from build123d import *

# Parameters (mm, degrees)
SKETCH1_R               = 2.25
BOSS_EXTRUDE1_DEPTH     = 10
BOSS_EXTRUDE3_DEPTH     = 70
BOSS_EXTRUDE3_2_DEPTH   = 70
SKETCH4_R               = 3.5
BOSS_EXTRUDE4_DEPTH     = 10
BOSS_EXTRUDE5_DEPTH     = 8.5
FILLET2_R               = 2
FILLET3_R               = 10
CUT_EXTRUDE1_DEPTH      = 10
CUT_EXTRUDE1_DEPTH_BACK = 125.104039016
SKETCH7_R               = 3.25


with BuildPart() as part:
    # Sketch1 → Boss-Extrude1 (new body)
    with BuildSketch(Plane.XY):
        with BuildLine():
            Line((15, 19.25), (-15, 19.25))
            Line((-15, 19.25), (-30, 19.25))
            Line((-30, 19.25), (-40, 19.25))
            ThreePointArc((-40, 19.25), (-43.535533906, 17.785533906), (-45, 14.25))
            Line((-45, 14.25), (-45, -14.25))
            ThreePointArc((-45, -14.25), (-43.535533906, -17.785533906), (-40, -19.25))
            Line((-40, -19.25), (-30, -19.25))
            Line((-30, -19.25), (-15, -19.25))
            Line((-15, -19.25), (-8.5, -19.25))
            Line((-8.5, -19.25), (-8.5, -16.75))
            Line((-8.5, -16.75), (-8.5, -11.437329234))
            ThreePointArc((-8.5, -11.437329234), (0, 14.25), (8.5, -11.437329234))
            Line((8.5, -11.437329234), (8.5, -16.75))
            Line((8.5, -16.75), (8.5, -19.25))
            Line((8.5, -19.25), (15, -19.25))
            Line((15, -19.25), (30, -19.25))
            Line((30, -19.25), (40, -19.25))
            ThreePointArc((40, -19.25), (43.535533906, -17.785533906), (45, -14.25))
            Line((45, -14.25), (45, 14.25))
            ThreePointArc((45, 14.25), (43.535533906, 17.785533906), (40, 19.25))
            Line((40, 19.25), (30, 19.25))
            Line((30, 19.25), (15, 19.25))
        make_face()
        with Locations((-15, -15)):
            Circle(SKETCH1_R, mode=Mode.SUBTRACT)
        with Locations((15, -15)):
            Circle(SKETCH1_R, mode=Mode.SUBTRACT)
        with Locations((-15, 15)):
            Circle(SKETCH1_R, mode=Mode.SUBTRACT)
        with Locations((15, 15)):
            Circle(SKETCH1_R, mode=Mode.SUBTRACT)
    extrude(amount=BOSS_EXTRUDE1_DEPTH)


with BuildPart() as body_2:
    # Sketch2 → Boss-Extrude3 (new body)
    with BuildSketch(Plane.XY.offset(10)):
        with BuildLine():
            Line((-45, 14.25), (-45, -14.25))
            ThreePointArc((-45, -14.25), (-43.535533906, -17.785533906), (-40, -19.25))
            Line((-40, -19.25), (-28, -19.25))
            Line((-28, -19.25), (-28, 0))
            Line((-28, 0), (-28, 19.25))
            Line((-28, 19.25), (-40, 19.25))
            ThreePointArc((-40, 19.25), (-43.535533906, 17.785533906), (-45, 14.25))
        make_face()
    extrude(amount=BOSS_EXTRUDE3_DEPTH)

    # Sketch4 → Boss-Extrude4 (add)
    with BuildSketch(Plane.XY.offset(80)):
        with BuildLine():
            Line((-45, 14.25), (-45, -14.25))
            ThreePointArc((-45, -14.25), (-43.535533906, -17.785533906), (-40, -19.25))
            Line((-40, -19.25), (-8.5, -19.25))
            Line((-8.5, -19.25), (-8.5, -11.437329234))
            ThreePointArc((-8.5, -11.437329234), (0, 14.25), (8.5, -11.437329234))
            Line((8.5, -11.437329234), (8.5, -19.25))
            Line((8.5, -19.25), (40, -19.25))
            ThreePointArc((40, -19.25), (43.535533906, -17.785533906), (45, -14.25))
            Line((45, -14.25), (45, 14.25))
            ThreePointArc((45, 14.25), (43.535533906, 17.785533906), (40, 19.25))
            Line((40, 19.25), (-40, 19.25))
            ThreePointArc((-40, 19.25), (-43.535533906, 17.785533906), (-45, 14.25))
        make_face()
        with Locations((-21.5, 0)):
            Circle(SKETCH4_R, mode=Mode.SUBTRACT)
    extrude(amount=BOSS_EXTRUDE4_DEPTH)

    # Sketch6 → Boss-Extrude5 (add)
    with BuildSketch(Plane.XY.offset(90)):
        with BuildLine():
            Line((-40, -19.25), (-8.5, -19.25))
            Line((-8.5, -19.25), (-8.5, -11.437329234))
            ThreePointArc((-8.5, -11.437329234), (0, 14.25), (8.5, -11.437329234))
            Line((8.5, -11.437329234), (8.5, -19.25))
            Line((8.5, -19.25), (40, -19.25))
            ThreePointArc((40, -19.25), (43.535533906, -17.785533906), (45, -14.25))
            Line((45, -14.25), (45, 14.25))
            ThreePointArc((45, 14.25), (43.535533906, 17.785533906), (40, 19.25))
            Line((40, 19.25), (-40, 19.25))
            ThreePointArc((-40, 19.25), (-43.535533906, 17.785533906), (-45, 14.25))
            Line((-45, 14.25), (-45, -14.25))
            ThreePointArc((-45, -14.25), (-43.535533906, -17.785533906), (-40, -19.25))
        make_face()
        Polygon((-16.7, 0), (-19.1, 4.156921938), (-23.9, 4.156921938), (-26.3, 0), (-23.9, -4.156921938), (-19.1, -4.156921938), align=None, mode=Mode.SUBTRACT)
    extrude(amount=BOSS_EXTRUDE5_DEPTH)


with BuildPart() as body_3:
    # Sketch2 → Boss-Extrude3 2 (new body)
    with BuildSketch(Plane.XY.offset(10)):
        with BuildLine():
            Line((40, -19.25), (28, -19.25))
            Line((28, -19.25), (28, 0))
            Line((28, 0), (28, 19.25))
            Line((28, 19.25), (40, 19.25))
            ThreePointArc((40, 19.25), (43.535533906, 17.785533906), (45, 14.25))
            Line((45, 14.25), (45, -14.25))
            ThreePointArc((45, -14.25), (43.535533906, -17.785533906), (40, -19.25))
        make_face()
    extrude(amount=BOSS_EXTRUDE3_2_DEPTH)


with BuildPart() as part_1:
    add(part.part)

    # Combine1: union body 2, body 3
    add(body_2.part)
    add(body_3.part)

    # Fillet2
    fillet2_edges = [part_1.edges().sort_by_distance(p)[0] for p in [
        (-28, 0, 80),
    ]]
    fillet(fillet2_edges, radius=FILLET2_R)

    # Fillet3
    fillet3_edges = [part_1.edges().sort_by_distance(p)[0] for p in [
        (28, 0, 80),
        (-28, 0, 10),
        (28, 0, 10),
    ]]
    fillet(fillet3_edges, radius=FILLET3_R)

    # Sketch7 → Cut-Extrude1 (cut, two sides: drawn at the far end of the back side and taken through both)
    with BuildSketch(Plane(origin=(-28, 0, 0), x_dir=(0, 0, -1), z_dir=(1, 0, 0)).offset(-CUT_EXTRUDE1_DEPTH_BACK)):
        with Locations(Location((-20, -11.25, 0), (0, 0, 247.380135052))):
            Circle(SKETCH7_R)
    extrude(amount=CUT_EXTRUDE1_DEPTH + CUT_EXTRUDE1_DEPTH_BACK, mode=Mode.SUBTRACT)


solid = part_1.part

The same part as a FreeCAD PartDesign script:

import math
import FreeCAD as App
import Part
import Sketcher
from FreeCAD import Vector
Q = App.Units.Quantity


def edges_at(feature, points):
    """Names of the edges that pass closest to the given points."""
    edges = feature.Shape.Edges
    near = lambda p: min(range(len(edges)), key=lambda i: edges[i].distToShape(Part.Vertex(*p))[0])
    return sorted({f"Edge{near(p) + 1}" for p in points})

doc = App.newDocument("Part")
body = doc.addObject("PartDesign::Body", "Body")

# Sketch on XY plane
sketch1 = doc.addObject("Sketcher::SketchObject", "Sketch")
body.addObject(sketch1)
sketch1.AttachmentSupport = (doc.XY_Plane, [""])
sketch1.MapMode = "FlatFace"
sketch1.addGeometry(Part.ArcOfCircle(Part.Circle(Vector(-40, 14.25, 0), Vector(0, 0, 1), 5), math.radians(90), math.radians(180)), False)
sketch1.addGeometry(Part.LineSegment(Vector(-45, 14.25, 0), Vector(-45, -14.25, 0)), False)
sketch1.addGeometry(Part.ArcOfCircle(Part.Circle(Vector(-40, -14.25, 0), Vector(0, 0, 1), 5), math.radians(180), math.radians(270)), False)
sketch1.addGeometry(Part.LineSegment(Vector(-40, -19.25, 0), Vector(-8.5, -19.25, 0)), False)
sketch1.addGeometry(Part.LineSegment(Vector(-8.5, -19.25, 0), Vector(-8.5, -11.437329, 0)), False)
sketch1.addGeometry(Part.ArcOfCircle(Part.Circle(Vector(0, 0, 0), Vector(0, 0, 1), 14.25), math.radians(-53.380988), math.radians(233.380988)), False)
sketch1.addGeometry(Part.LineSegment(Vector(8.5, -11.437329, 0), Vector(8.5, -19.25, 0)), False)
sketch1.addGeometry(Part.LineSegment(Vector(8.5, -19.25, 0), Vector(40, -19.25, 0)), False)
sketch1.addGeometry(Part.ArcOfCircle(Part.Circle(Vector(40, -14.25, 0), Vector(0, 0, 1), 5), math.radians(-90), math.radians(0)), False)
sketch1.addGeometry(Part.LineSegment(Vector(45, -14.25, 0), Vector(45, 14.25, 0)), False)
sketch1.addGeometry(Part.ArcOfCircle(Part.Circle(Vector(40, 14.25, 0), Vector(0, 0, 1), 5), math.radians(0), math.radians(90)), False)
sketch1.addGeometry(Part.LineSegment(Vector(40, 19.25, 0), Vector(-40, 19.25, 0)), False)
sketch1.addGeometry(Part.Circle(Vector(-15, -15, 0), Vector(0, 0, 1), 2.25), False)
sketch1.addGeometry(Part.Circle(Vector(15, -15, 0), Vector(0, 0, 1), 2.25), False)
sketch1.addGeometry(Part.Circle(Vector(-15, 15, 0), Vector(0, 0, 1), 2.25), False)
sketch1.addGeometry(Part.Circle(Vector(15, 15, 0), Vector(0, 0, 1), 2.25), False)
sketch1.addConstraint(Sketcher.Constraint("Tangent", 0, 2, 1, 1))
sketch1.addConstraint(Sketcher.Constraint("Tangent", 1, 2, 2, 1))
sketch1.addConstraint(Sketcher.Constraint("Tangent", 2, 2, 3, 1))
sketch1.addConstraint(Sketcher.Constraint("Coincident", 3, 2, 4, 1))
sketch1.addConstraint(Sketcher.Constraint("Coincident", 4, 2, 5, 2))
sketch1.addConstraint(Sketcher.Constraint("Coincident", 5, 1, 6, 1))
sketch1.addConstraint(Sketcher.Constraint("Coincident", 6, 2, 7, 1))
sketch1.addConstraint(Sketcher.Constraint("Tangent", 7, 2, 8, 1))
sketch1.addConstraint(Sketcher.Constraint("Tangent", 8, 2, 9, 1))
sketch1.addConstraint(Sketcher.Constraint("Tangent", 9, 2, 10, 1))
sketch1.addConstraint(Sketcher.Constraint("Tangent", 10, 2, 11, 1))
sketch1.addConstraint(Sketcher.Constraint("Tangent", 11, 2, 0, 1))
sketch1.addConstraint(Sketcher.Constraint("Vertical", 1))
sketch1.addConstraint(Sketcher.Constraint("Horizontal", 3))
sketch1.addConstraint(Sketcher.Constraint("Vertical", 4))
sketch1.addConstraint(Sketcher.Constraint("Vertical", 6))
sketch1.addConstraint(Sketcher.Constraint("Horizontal", 7))
sketch1.addConstraint(Sketcher.Constraint("Vertical", 9))
sketch1.addConstraint(Sketcher.Constraint("Horizontal", 11))
sketch1.addConstraint(Sketcher.Constraint("Coincident", 5, 3, -1, 1))
sketch1.addConstraint(Sketcher.Constraint("Equal", 0, 2))
sketch1.addConstraint(Sketcher.Constraint("Equal", 2, 8))
sketch1.addConstraint(Sketcher.Constraint("Equal", 8, 10))
sketch1.addConstraint(Sketcher.Constraint("Equal", 12, 13))
sketch1.addConstraint(Sketcher.Constraint("Equal", 13, 14))
sketch1.addConstraint(Sketcher.Constraint("Equal", 14, 15))
sketch1.addConstraint(Sketcher.Constraint("Symmetric", 0, 3, 8, 3, -1, 1))
sketch1.addConstraint(Sketcher.Constraint("Symmetric", 13, 3, 14, 3, -1, 1))
sketch1.addConstraint(Sketcher.Constraint("Symmetric", 12, 3, 15, 3, -1, 1))
sketch1.addConstraint(Sketcher.Constraint("Symmetric", 12, 3, 13, 3, -2))
sketch1.addConstraint(Sketcher.Constraint("Symmetric", 3, 2, 6, 2, -2))
sketch1.addConstraint(Sketcher.Constraint("Radius", 0, 5.0))
sketch1.addConstraint(Sketcher.Constraint("Diameter", 12, 4.5))
sketch1.addConstraint(Sketcher.Constraint("DistanceX", 11, 2, 11, 1, 80.0))
sketch1.addConstraint(Sketcher.Constraint("Radius", 5, 14.25))
sketch1.addConstraint(Sketcher.Constraint("DistanceX", 3, 1, 3, 2, 31.5))
sketch1.addConstraint(Sketcher.Constraint("DistanceY", 1, 2, 1, 1, 28.5))
sketch1.addConstraint(Sketcher.Constraint("DistanceX", 12, 3, -1, 1, 15.0))
sketch1.addConstraint(Sketcher.Constraint("DistanceY", 12, 3, -1, 1, 15.0))
pad1 = doc.addObject("PartDesign::Pad", "Pad")
body.addObject(pad1)
pad1.Profile = sketch1
pad1.Length = 10
body2 = doc.addObject("PartDesign::Body", "Body001")

# Sketch on XY plane
sketch2 = doc.addObject("Sketcher::SketchObject", "Sketch001")
body2.addObject(sketch2)
sketch2.AttachmentSupport = (doc.getObject("XY_Plane001"), [""])
sketch2.MapMode = "FlatFace"
sketch2.AttachmentOffset = App.Placement(Vector(0, 0, 10), App.Rotation())
sketch2.addGeometry(Part.LineSegment(Vector(-45, 14.25, 0), Vector(-45, -14.25, 0)), False)
sketch2.addGeometry(Part.ArcOfCircle(Part.Circle(Vector(-40, -14.25, 0), Vector(0, 0, 1), 5), math.radians(180), math.radians(270)), False)
sketch2.addGeometry(Part.LineSegment(Vector(-40, -19.25, 0), Vector(-28, -19.25, 0)), False)
sketch2.addGeometry(Part.LineSegment(Vector(-28, -19.25, 0), Vector(-28, 19.25, 0)), False)
sketch2.addGeometry(Part.LineSegment(Vector(-28, 19.25, 0), Vector(-40, 19.25, 0)), False)
sketch2.addGeometry(Part.ArcOfCircle(Part.Circle(Vector(-40, 14.25, 0), Vector(0, 0, 1), 5), math.radians(90), math.radians(180)), False)
sketch2.addConstraint(Sketcher.Constraint("Tangent", 0, 2, 1, 1))
sketch2.addConstraint(Sketcher.Constraint("Tangent", 1, 2, 2, 1))
sketch2.addConstraint(Sketcher.Constraint("Coincident", 2, 2, 3, 1))
sketch2.addConstraint(Sketcher.Constraint("Coincident", 3, 2, 4, 1))
sketch2.addConstraint(Sketcher.Constraint("Tangent", 4, 2, 5, 1))
sketch2.addConstraint(Sketcher.Constraint("Tangent", 5, 2, 0, 1))
sketch2.addConstraint(Sketcher.Constraint("Vertical", 0))
sketch2.addConstraint(Sketcher.Constraint("Horizontal", 2))
sketch2.addConstraint(Sketcher.Constraint("Vertical", 3))
sketch2.addConstraint(Sketcher.Constraint("Horizontal", 4))
sketch2.addConstraint(Sketcher.Constraint("Equal", 1, 5))
sketch2.addConstraint(Sketcher.Constraint("Radius", 1, 5.0))
sketch2.addConstraint(Sketcher.Constraint("DistanceX", 2, 1, 2, 2, 12.0))
sketch2.addConstraint(Sketcher.Constraint("DistanceY", 0, 2, 0, 1, 28.5))
sketch2.addConstraint(Sketcher.Constraint("DistanceX", 1, 3, -1, 1, 40.0))
sketch2.addConstraint(Sketcher.Constraint("DistanceY", 1, 3, -1, 1, 14.25))
pad2 = doc.addObject("PartDesign::Pad", "Pad001")
body2.addObject(pad2)
pad2.Profile = sketch2
pad2.Length = 70

# Sketch on XY plane
sketch3 = doc.addObject("Sketcher::SketchObject", "Sketch002")
body2.addObject(sketch3)
sketch3.AttachmentSupport = (doc.getObject("XY_Plane001"), [""])
sketch3.MapMode = "FlatFace"
sketch3.AttachmentOffset = App.Placement(Vector(0, 0, 80), App.Rotation())
sketch3.addGeometry(Part.LineSegment(Vector(-45, 14.25, 0), Vector(-45, -14.25, 0)), False)
sketch3.addGeometry(Part.ArcOfCircle(Part.Circle(Vector(-40, -14.25, 0), Vector(0, 0, 1), 5), math.radians(180), math.radians(270)), False)
sketch3.addGeometry(Part.LineSegment(Vector(-40, -19.25, 0), Vector(-8.5, -19.25, 0)), False)
sketch3.addGeometry(Part.LineSegment(Vector(-8.5, -19.25, 0), Vector(-8.5, -11.437329, 0)), False)
sketch3.addGeometry(Part.ArcOfCircle(Part.Circle(Vector(0, 0, 0), Vector(0, 0, 1), 14.25), math.radians(-53.380988), math.radians(233.380988)), False)
sketch3.addGeometry(Part.LineSegment(Vector(8.5, -11.437329, 0), Vector(8.5, -19.25, 0)), False)
sketch3.addGeometry(Part.LineSegment(Vector(8.5, -19.25, 0), Vector(40, -19.25, 0)), False)
sketch3.addGeometry(Part.ArcOfCircle(Part.Circle(Vector(40, -14.25, 0), Vector(0, 0, 1), 5), math.radians(-90), math.radians(0)), False)
sketch3.addGeometry(Part.LineSegment(Vector(45, -14.25, 0), Vector(45, 14.25, 0)), False)
sketch3.addGeometry(Part.ArcOfCircle(Part.Circle(Vector(40, 14.25, 0), Vector(0, 0, 1), 5), math.radians(0), math.radians(90)), False)
sketch3.addGeometry(Part.LineSegment(Vector(40, 19.25, 0), Vector(-40, 19.25, 0)), False)
sketch3.addGeometry(Part.ArcOfCircle(Part.Circle(Vector(-40, 14.25, 0), Vector(0, 0, 1), 5), math.radians(90), math.radians(180)), False)
sketch3.addGeometry(Part.Circle(Vector(-21.5, 0, 0), Vector(0, 0, 1), 3.5), False)
sketch3.addConstraint(Sketcher.Constraint("Tangent", 0, 2, 1, 1))
sketch3.addConstraint(Sketcher.Constraint("Tangent", 1, 2, 2, 1))
sketch3.addConstraint(Sketcher.Constraint("Coincident", 2, 2, 3, 1))
sketch3.addConstraint(Sketcher.Constraint("Coincident", 3, 2, 4, 2))
sketch3.addConstraint(Sketcher.Constraint("Coincident", 4, 1, 5, 1))
sketch3.addConstraint(Sketcher.Constraint("Coincident", 5, 2, 6, 1))
sketch3.addConstraint(Sketcher.Constraint("Tangent", 6, 2, 7, 1))
sketch3.addConstraint(Sketcher.Constraint("Tangent", 7, 2, 8, 1))
sketch3.addConstraint(Sketcher.Constraint("Tangent", 8, 2, 9, 1))
sketch3.addConstraint(Sketcher.Constraint("Tangent", 9, 2, 10, 1))
sketch3.addConstraint(Sketcher.Constraint("Tangent", 10, 2, 11, 1))
sketch3.addConstraint(Sketcher.Constraint("Tangent", 11, 2, 0, 1))
sketch3.addConstraint(Sketcher.Constraint("Vertical", 0))
sketch3.addConstraint(Sketcher.Constraint("Horizontal", 2))
sketch3.addConstraint(Sketcher.Constraint("Vertical", 3))
sketch3.addConstraint(Sketcher.Constraint("Vertical", 5))
sketch3.addConstraint(Sketcher.Constraint("Horizontal", 6))
sketch3.addConstraint(Sketcher.Constraint("Vertical", 8))
sketch3.addConstraint(Sketcher.Constraint("Horizontal", 10))
sketch3.addConstraint(Sketcher.Constraint("Coincident", 4, 3, -1, 1))
sketch3.addConstraint(Sketcher.Constraint("Equal", 1, 7))
sketch3.addConstraint(Sketcher.Constraint("Equal", 7, 9))
sketch3.addConstraint(Sketcher.Constraint("Equal", 9, 11))
sketch3.addConstraint(Sketcher.Constraint("Symmetric", 1, 3, 9, 3, -1, 1))
sketch3.addConstraint(Sketcher.Constraint("Symmetric", 2, 2, 5, 2, -2))
sketch3.addConstraint(Sketcher.Constraint("PointOnObject", 12, 3, -1))
sketch3.addConstraint(Sketcher.Constraint("Diameter", 12, 7.0))
sketch3.addConstraint(Sketcher.Constraint("Radius", 1, 5.0))
sketch3.addConstraint(Sketcher.Constraint("DistanceX", 10, 2, 10, 1, 80.0))
sketch3.addConstraint(Sketcher.Constraint("Radius", 4, 14.25))
sketch3.addConstraint(Sketcher.Constraint("DistanceX", 2, 1, 2, 2, 31.5))
sketch3.addConstraint(Sketcher.Constraint("DistanceY", 0, 2, 0, 1, 28.5))
sketch3.addConstraint(Sketcher.Constraint("DistanceX", 12, 3, 2, 2, 13.0))
pad3 = doc.addObject("PartDesign::Pad", "Pad002")
body2.addObject(pad3)
pad3.Profile = sketch3
pad3.Length = 10

# Sketch on XY plane
sketch4 = doc.addObject("Sketcher::SketchObject", "Sketch003")
body2.addObject(sketch4)
sketch4.AttachmentSupport = (doc.getObject("XY_Plane001"), [""])
sketch4.MapMode = "FlatFace"
sketch4.AttachmentOffset = App.Placement(Vector(0, 0, 90), App.Rotation())
sketch4.addGeometry(Part.LineSegment(Vector(-40, -19.25, 0), Vector(-8.5, -19.25, 0)), False)
sketch4.addGeometry(Part.LineSegment(Vector(-8.5, -19.25, 0), Vector(-8.5, -11.437329, 0)), False)
sketch4.addGeometry(Part.ArcOfCircle(Part.Circle(Vector(0, 0, 0), Vector(0, 0, 1), 14.25), math.radians(-53.380988), math.radians(233.380988)), False)
sketch4.addGeometry(Part.LineSegment(Vector(8.5, -11.437329, 0), Vector(8.5, -19.25, 0)), False)
sketch4.addGeometry(Part.LineSegment(Vector(8.5, -19.25, 0), Vector(40, -19.25, 0)), False)
sketch4.addGeometry(Part.ArcOfCircle(Part.Circle(Vector(40, -14.25, 0), Vector(0, 0, 1), 5), math.radians(-90), math.radians(0)), False)
sketch4.addGeometry(Part.LineSegment(Vector(45, -14.25, 0), Vector(45, 14.25, 0)), False)
sketch4.addGeometry(Part.ArcOfCircle(Part.Circle(Vector(40, 14.25, 0), Vector(0, 0, 1), 5), math.radians(0), math.radians(90)), False)
sketch4.addGeometry(Part.LineSegment(Vector(40, 19.25, 0), Vector(-40, 19.25, 0)), False)
sketch4.addGeometry(Part.ArcOfCircle(Part.Circle(Vector(-40, 14.25, 0), Vector(0, 0, 1), 5), math.radians(90), math.radians(180)), False)
sketch4.addGeometry(Part.LineSegment(Vector(-45, 14.25, 0), Vector(-45, -14.25, 0)), False)
sketch4.addGeometry(Part.ArcOfCircle(Part.Circle(Vector(-40, -14.25, 0), Vector(0, 0, 1), 5), math.radians(180), math.radians(270)), False)
sketch4.addGeometry(Part.LineSegment(Vector(-19.1, 4.156922, 0), Vector(-16.7, 0, 0)), False)
sketch4.addGeometry(Part.LineSegment(Vector(-16.7, 0, 0), Vector(-19.1, -4.156922, 0)), False)
sketch4.addGeometry(Part.LineSegment(Vector(-19.1, -4.156922, 0), Vector(-23.9, -4.156922, 0)), False)
sketch4.addGeometry(Part.LineSegment(Vector(-23.9, -4.156922, 0), Vector(-26.3, 0, 0)), False)
sketch4.addGeometry(Part.LineSegment(Vector(-26.3, 0, 0), Vector(-23.9, 4.156922, 0)), False)
sketch4.addGeometry(Part.LineSegment(Vector(-23.9, 4.156922, 0), Vector(-19.1, 4.156922, 0)), False)
sketch4.addConstraint(Sketcher.Constraint("Coincident", 0, 2, 1, 1))
sketch4.addConstraint(Sketcher.Constraint("Coincident", 1, 2, 2, 2))
sketch4.addConstraint(Sketcher.Constraint("Coincident", 2, 1, 3, 1))
sketch4.addConstraint(Sketcher.Constraint("Coincident", 3, 2, 4, 1))
sketch4.addConstraint(Sketcher.Constraint("Tangent", 4, 2, 5, 1))
sketch4.addConstraint(Sketcher.Constraint("Tangent", 5, 2, 6, 1))
sketch4.addConstraint(Sketcher.Constraint("Tangent", 6, 2, 7, 1))
sketch4.addConstraint(Sketcher.Constraint("Tangent", 7, 2, 8, 1))
sketch4.addConstraint(Sketcher.Constraint("Tangent", 8, 2, 9, 1))
sketch4.addConstraint(Sketcher.Constraint("Tangent", 9, 2, 10, 1))
sketch4.addConstraint(Sketcher.Constraint("Tangent", 10, 2, 11, 1))
sketch4.addConstraint(Sketcher.Constraint("Tangent", 11, 2, 0, 1))
sketch4.addConstraint(Sketcher.Constraint("Coincident", 12, 2, 13, 1))
sketch4.addConstraint(Sketcher.Constraint("Coincident", 13, 2, 14, 1))
sketch4.addConstraint(Sketcher.Constraint("Coincident", 14, 2, 15, 1))
sketch4.addConstraint(Sketcher.Constraint("Coincident", 15, 2, 16, 1))
sketch4.addConstraint(Sketcher.Constraint("Coincident", 16, 2, 17, 1))
sketch4.addConstraint(Sketcher.Constraint("Coincident", 17, 2, 12, 1))
sketch4.addConstraint(Sketcher.Constraint("Horizontal", 0))
sketch4.addConstraint(Sketcher.Constraint("Vertical", 1))
sketch4.addConstraint(Sketcher.Constraint("Vertical", 3))
sketch4.addConstraint(Sketcher.Constraint("Horizontal", 4))
sketch4.addConstraint(Sketcher.Constraint("Vertical", 6))
sketch4.addConstraint(Sketcher.Constraint("Horizontal", 8))
sketch4.addConstraint(Sketcher.Constraint("Vertical", 10))
sketch4.addConstraint(Sketcher.Constraint("Horizontal", 14))
sketch4.addConstraint(Sketcher.Constraint("Horizontal", 17))
sketch4.addConstraint(Sketcher.Constraint("Coincident", 2, 3, -1, 1))
sketch4.addConstraint(Sketcher.Constraint("Equal", 5, 7))
sketch4.addConstraint(Sketcher.Constraint("Equal", 7, 9))
sketch4.addConstraint(Sketcher.Constraint("Equal", 9, 11))
sketch4.addConstraint(Sketcher.Constraint("Symmetric", 5, 3, 9, 3, -1, 1))
sketch4.addConstraint(Sketcher.Constraint("Symmetric", 0, 2, 3, 2, -2))
sketch4.addConstraint(Sketcher.Constraint("Symmetric", 14, 2, 16, 2, -1))
sketch4.addConstraint(Sketcher.Constraint("PointOnObject", 12, 2, -1))
sketch4.addConstraint(Sketcher.Constraint("PointOnObject", 15, 2, -1))
sketch4.addConstraint(Sketcher.Constraint("Parallel", 12, 15))
sketch4.addConstraint(Sketcher.Constraint("Parallel", 13, 16))
sketch4.addConstraint(Sketcher.Constraint("Radius", 5, 5.0))
sketch4.addConstraint(Sketcher.Constraint("DistanceX", 8, 2, 8, 1, 80.0))
sketch4.addConstraint(Sketcher.Constraint("Angle", 12, Q("-60 deg")))
sketch4.addConstraint(Sketcher.Constraint("Radius", 2, 14.25))
sketch4.addConstraint(Sketcher.Constraint("DistanceX", 0, 1, 0, 2, 31.5))
sketch4.addConstraint(Sketcher.Constraint("DistanceX", 14, 2, 14, 1, 4.8))
sketch4.addConstraint(Sketcher.Constraint("DistanceY", 6, 1, 6, 2, 28.5))
sketch4.addConstraint(Sketcher.Constraint("Distance", 12, 4.8))
sketch4.addConstraint(Sketcher.Constraint("DistanceX", 12, 2, -1, 1, 16.7))
pad4 = doc.addObject("PartDesign::Pad", "Pad003")
body2.addObject(pad4)
pad4.Profile = sketch4
pad4.Length = 8.5
body3 = doc.addObject("PartDesign::Body", "Body002")

# Sketch on XY plane
sketch5 = doc.addObject("Sketcher::SketchObject", "Sketch004")
body3.addObject(sketch5)
sketch5.AttachmentSupport = (doc.getObject("XY_Plane002"), [""])
sketch5.MapMode = "FlatFace"
sketch5.AttachmentOffset = App.Placement(Vector(0, 0, 10), App.Rotation())
sketch5.addGeometry(Part.LineSegment(Vector(28, -19.25, 0), Vector(40, -19.25, 0)), False)
sketch5.addGeometry(Part.ArcOfCircle(Part.Circle(Vector(40, -14.25, 0), Vector(0, 0, 1), 5), math.radians(-90), math.radians(0)), False)
sketch5.addGeometry(Part.LineSegment(Vector(45, -14.25, 0), Vector(45, 14.25, 0)), False)
sketch5.addGeometry(Part.ArcOfCircle(Part.Circle(Vector(40, 14.25, 0), Vector(0, 0, 1), 5), math.radians(0), math.radians(90)), False)
sketch5.addGeometry(Part.LineSegment(Vector(40, 19.25, 0), Vector(28, 19.25, 0)), False)
sketch5.addGeometry(Part.LineSegment(Vector(28, 19.25, 0), Vector(28, -19.25, 0)), False)
sketch5.addConstraint(Sketcher.Constraint("Tangent", 0, 2, 1, 1))
sketch5.addConstraint(Sketcher.Constraint("Tangent", 1, 2, 2, 1))
sketch5.addConstraint(Sketcher.Constraint("Tangent", 2, 2, 3, 1))
sketch5.addConstraint(Sketcher.Constraint("Tangent", 3, 2, 4, 1))
sketch5.addConstraint(Sketcher.Constraint("Coincident", 4, 2, 5, 1))
sketch5.addConstraint(Sketcher.Constraint("Coincident", 5, 2, 0, 1))
sketch5.addConstraint(Sketcher.Constraint("Horizontal", 0))
sketch5.addConstraint(Sketcher.Constraint("Vertical", 2))
sketch5.addConstraint(Sketcher.Constraint("Horizontal", 4))
sketch5.addConstraint(Sketcher.Constraint("Vertical", 5))
sketch5.addConstraint(Sketcher.Constraint("Equal", 1, 3))
sketch5.addConstraint(Sketcher.Constraint("Radius", 1, 5.0))
sketch5.addConstraint(Sketcher.Constraint("DistanceX", 0, 1, 0, 2, 12.0))
sketch5.addConstraint(Sketcher.Constraint("DistanceY", 2, 1, 2, 2, 28.5))
sketch5.addConstraint(Sketcher.Constraint("DistanceX", -1, 1, 1, 3, 40.0))
sketch5.addConstraint(Sketcher.Constraint("DistanceY", 1, 3, -1, 1, 14.25))
pad5 = doc.addObject("PartDesign::Pad", "Pad004")
body3.addObject(pad5)
pad5.Profile = sketch5
pad5.Length = 70
doc.recompute()

boolean = doc.addObject("PartDesign::Boolean", "Boolean")
body.addObject(boolean)
boolean.Type = "Fuse"
boolean.addObjects([body2])
doc.recompute()

boolean2 = doc.addObject("PartDesign::Boolean", "Boolean001")
body.addObject(boolean2)
boolean2.Type = "Fuse"
boolean2.addObjects([body3])
doc.recompute()

fillet = doc.addObject("PartDesign::Fillet", "Fillet")
body.addObject(fillet)
fillet.Base = (boolean2, edges_at(boolean2, [(-28, 0, 80)]))
fillet.Radius = 2
doc.recompute()

fillet2 = doc.addObject("PartDesign::Fillet", "Fillet001")
body.addObject(fillet2)
fillet2.Base = (fillet, edges_at(fillet, [(28, 0, 80), (-28, 0, 10), (28, 0, 10)]))
fillet2.Radius = 10

# Sketch on YZ plane
sketch6 = doc.addObject("Sketcher::SketchObject", "Sketch005")
body.addObject(sketch6)
sketch6.AttachmentSupport = (doc.YZ_Plane, [""])
sketch6.MapMode = "FlatFace"
sketch6.AttachmentOffset = App.Placement(Vector(0, 0, -28), App.Rotation())
sketch6.addGeometry(Part.Circle(Vector(-11.25, 20, 0), Vector(0, 0, 1), 3.25), False)
sketch6.addConstraint(Sketcher.Constraint("Diameter", 0, 6.5))
sketch6.addConstraint(Sketcher.Constraint("DistanceY", -1, 1, 0, 3, 20.0))
sketch6.addConstraint(Sketcher.Constraint("DistanceX", 0, 3, -1, 1, 11.25))
pocket1 = doc.addObject("PartDesign::Pocket", "Pocket")
body.addObject(pocket1)
pocket1.Profile = sketch6
pocket1.Type = "TwoLengths"
pocket1.Length = 10
pocket1.Length2 = 125.104039
pocket1.Reversed = True

doc.recompute()
